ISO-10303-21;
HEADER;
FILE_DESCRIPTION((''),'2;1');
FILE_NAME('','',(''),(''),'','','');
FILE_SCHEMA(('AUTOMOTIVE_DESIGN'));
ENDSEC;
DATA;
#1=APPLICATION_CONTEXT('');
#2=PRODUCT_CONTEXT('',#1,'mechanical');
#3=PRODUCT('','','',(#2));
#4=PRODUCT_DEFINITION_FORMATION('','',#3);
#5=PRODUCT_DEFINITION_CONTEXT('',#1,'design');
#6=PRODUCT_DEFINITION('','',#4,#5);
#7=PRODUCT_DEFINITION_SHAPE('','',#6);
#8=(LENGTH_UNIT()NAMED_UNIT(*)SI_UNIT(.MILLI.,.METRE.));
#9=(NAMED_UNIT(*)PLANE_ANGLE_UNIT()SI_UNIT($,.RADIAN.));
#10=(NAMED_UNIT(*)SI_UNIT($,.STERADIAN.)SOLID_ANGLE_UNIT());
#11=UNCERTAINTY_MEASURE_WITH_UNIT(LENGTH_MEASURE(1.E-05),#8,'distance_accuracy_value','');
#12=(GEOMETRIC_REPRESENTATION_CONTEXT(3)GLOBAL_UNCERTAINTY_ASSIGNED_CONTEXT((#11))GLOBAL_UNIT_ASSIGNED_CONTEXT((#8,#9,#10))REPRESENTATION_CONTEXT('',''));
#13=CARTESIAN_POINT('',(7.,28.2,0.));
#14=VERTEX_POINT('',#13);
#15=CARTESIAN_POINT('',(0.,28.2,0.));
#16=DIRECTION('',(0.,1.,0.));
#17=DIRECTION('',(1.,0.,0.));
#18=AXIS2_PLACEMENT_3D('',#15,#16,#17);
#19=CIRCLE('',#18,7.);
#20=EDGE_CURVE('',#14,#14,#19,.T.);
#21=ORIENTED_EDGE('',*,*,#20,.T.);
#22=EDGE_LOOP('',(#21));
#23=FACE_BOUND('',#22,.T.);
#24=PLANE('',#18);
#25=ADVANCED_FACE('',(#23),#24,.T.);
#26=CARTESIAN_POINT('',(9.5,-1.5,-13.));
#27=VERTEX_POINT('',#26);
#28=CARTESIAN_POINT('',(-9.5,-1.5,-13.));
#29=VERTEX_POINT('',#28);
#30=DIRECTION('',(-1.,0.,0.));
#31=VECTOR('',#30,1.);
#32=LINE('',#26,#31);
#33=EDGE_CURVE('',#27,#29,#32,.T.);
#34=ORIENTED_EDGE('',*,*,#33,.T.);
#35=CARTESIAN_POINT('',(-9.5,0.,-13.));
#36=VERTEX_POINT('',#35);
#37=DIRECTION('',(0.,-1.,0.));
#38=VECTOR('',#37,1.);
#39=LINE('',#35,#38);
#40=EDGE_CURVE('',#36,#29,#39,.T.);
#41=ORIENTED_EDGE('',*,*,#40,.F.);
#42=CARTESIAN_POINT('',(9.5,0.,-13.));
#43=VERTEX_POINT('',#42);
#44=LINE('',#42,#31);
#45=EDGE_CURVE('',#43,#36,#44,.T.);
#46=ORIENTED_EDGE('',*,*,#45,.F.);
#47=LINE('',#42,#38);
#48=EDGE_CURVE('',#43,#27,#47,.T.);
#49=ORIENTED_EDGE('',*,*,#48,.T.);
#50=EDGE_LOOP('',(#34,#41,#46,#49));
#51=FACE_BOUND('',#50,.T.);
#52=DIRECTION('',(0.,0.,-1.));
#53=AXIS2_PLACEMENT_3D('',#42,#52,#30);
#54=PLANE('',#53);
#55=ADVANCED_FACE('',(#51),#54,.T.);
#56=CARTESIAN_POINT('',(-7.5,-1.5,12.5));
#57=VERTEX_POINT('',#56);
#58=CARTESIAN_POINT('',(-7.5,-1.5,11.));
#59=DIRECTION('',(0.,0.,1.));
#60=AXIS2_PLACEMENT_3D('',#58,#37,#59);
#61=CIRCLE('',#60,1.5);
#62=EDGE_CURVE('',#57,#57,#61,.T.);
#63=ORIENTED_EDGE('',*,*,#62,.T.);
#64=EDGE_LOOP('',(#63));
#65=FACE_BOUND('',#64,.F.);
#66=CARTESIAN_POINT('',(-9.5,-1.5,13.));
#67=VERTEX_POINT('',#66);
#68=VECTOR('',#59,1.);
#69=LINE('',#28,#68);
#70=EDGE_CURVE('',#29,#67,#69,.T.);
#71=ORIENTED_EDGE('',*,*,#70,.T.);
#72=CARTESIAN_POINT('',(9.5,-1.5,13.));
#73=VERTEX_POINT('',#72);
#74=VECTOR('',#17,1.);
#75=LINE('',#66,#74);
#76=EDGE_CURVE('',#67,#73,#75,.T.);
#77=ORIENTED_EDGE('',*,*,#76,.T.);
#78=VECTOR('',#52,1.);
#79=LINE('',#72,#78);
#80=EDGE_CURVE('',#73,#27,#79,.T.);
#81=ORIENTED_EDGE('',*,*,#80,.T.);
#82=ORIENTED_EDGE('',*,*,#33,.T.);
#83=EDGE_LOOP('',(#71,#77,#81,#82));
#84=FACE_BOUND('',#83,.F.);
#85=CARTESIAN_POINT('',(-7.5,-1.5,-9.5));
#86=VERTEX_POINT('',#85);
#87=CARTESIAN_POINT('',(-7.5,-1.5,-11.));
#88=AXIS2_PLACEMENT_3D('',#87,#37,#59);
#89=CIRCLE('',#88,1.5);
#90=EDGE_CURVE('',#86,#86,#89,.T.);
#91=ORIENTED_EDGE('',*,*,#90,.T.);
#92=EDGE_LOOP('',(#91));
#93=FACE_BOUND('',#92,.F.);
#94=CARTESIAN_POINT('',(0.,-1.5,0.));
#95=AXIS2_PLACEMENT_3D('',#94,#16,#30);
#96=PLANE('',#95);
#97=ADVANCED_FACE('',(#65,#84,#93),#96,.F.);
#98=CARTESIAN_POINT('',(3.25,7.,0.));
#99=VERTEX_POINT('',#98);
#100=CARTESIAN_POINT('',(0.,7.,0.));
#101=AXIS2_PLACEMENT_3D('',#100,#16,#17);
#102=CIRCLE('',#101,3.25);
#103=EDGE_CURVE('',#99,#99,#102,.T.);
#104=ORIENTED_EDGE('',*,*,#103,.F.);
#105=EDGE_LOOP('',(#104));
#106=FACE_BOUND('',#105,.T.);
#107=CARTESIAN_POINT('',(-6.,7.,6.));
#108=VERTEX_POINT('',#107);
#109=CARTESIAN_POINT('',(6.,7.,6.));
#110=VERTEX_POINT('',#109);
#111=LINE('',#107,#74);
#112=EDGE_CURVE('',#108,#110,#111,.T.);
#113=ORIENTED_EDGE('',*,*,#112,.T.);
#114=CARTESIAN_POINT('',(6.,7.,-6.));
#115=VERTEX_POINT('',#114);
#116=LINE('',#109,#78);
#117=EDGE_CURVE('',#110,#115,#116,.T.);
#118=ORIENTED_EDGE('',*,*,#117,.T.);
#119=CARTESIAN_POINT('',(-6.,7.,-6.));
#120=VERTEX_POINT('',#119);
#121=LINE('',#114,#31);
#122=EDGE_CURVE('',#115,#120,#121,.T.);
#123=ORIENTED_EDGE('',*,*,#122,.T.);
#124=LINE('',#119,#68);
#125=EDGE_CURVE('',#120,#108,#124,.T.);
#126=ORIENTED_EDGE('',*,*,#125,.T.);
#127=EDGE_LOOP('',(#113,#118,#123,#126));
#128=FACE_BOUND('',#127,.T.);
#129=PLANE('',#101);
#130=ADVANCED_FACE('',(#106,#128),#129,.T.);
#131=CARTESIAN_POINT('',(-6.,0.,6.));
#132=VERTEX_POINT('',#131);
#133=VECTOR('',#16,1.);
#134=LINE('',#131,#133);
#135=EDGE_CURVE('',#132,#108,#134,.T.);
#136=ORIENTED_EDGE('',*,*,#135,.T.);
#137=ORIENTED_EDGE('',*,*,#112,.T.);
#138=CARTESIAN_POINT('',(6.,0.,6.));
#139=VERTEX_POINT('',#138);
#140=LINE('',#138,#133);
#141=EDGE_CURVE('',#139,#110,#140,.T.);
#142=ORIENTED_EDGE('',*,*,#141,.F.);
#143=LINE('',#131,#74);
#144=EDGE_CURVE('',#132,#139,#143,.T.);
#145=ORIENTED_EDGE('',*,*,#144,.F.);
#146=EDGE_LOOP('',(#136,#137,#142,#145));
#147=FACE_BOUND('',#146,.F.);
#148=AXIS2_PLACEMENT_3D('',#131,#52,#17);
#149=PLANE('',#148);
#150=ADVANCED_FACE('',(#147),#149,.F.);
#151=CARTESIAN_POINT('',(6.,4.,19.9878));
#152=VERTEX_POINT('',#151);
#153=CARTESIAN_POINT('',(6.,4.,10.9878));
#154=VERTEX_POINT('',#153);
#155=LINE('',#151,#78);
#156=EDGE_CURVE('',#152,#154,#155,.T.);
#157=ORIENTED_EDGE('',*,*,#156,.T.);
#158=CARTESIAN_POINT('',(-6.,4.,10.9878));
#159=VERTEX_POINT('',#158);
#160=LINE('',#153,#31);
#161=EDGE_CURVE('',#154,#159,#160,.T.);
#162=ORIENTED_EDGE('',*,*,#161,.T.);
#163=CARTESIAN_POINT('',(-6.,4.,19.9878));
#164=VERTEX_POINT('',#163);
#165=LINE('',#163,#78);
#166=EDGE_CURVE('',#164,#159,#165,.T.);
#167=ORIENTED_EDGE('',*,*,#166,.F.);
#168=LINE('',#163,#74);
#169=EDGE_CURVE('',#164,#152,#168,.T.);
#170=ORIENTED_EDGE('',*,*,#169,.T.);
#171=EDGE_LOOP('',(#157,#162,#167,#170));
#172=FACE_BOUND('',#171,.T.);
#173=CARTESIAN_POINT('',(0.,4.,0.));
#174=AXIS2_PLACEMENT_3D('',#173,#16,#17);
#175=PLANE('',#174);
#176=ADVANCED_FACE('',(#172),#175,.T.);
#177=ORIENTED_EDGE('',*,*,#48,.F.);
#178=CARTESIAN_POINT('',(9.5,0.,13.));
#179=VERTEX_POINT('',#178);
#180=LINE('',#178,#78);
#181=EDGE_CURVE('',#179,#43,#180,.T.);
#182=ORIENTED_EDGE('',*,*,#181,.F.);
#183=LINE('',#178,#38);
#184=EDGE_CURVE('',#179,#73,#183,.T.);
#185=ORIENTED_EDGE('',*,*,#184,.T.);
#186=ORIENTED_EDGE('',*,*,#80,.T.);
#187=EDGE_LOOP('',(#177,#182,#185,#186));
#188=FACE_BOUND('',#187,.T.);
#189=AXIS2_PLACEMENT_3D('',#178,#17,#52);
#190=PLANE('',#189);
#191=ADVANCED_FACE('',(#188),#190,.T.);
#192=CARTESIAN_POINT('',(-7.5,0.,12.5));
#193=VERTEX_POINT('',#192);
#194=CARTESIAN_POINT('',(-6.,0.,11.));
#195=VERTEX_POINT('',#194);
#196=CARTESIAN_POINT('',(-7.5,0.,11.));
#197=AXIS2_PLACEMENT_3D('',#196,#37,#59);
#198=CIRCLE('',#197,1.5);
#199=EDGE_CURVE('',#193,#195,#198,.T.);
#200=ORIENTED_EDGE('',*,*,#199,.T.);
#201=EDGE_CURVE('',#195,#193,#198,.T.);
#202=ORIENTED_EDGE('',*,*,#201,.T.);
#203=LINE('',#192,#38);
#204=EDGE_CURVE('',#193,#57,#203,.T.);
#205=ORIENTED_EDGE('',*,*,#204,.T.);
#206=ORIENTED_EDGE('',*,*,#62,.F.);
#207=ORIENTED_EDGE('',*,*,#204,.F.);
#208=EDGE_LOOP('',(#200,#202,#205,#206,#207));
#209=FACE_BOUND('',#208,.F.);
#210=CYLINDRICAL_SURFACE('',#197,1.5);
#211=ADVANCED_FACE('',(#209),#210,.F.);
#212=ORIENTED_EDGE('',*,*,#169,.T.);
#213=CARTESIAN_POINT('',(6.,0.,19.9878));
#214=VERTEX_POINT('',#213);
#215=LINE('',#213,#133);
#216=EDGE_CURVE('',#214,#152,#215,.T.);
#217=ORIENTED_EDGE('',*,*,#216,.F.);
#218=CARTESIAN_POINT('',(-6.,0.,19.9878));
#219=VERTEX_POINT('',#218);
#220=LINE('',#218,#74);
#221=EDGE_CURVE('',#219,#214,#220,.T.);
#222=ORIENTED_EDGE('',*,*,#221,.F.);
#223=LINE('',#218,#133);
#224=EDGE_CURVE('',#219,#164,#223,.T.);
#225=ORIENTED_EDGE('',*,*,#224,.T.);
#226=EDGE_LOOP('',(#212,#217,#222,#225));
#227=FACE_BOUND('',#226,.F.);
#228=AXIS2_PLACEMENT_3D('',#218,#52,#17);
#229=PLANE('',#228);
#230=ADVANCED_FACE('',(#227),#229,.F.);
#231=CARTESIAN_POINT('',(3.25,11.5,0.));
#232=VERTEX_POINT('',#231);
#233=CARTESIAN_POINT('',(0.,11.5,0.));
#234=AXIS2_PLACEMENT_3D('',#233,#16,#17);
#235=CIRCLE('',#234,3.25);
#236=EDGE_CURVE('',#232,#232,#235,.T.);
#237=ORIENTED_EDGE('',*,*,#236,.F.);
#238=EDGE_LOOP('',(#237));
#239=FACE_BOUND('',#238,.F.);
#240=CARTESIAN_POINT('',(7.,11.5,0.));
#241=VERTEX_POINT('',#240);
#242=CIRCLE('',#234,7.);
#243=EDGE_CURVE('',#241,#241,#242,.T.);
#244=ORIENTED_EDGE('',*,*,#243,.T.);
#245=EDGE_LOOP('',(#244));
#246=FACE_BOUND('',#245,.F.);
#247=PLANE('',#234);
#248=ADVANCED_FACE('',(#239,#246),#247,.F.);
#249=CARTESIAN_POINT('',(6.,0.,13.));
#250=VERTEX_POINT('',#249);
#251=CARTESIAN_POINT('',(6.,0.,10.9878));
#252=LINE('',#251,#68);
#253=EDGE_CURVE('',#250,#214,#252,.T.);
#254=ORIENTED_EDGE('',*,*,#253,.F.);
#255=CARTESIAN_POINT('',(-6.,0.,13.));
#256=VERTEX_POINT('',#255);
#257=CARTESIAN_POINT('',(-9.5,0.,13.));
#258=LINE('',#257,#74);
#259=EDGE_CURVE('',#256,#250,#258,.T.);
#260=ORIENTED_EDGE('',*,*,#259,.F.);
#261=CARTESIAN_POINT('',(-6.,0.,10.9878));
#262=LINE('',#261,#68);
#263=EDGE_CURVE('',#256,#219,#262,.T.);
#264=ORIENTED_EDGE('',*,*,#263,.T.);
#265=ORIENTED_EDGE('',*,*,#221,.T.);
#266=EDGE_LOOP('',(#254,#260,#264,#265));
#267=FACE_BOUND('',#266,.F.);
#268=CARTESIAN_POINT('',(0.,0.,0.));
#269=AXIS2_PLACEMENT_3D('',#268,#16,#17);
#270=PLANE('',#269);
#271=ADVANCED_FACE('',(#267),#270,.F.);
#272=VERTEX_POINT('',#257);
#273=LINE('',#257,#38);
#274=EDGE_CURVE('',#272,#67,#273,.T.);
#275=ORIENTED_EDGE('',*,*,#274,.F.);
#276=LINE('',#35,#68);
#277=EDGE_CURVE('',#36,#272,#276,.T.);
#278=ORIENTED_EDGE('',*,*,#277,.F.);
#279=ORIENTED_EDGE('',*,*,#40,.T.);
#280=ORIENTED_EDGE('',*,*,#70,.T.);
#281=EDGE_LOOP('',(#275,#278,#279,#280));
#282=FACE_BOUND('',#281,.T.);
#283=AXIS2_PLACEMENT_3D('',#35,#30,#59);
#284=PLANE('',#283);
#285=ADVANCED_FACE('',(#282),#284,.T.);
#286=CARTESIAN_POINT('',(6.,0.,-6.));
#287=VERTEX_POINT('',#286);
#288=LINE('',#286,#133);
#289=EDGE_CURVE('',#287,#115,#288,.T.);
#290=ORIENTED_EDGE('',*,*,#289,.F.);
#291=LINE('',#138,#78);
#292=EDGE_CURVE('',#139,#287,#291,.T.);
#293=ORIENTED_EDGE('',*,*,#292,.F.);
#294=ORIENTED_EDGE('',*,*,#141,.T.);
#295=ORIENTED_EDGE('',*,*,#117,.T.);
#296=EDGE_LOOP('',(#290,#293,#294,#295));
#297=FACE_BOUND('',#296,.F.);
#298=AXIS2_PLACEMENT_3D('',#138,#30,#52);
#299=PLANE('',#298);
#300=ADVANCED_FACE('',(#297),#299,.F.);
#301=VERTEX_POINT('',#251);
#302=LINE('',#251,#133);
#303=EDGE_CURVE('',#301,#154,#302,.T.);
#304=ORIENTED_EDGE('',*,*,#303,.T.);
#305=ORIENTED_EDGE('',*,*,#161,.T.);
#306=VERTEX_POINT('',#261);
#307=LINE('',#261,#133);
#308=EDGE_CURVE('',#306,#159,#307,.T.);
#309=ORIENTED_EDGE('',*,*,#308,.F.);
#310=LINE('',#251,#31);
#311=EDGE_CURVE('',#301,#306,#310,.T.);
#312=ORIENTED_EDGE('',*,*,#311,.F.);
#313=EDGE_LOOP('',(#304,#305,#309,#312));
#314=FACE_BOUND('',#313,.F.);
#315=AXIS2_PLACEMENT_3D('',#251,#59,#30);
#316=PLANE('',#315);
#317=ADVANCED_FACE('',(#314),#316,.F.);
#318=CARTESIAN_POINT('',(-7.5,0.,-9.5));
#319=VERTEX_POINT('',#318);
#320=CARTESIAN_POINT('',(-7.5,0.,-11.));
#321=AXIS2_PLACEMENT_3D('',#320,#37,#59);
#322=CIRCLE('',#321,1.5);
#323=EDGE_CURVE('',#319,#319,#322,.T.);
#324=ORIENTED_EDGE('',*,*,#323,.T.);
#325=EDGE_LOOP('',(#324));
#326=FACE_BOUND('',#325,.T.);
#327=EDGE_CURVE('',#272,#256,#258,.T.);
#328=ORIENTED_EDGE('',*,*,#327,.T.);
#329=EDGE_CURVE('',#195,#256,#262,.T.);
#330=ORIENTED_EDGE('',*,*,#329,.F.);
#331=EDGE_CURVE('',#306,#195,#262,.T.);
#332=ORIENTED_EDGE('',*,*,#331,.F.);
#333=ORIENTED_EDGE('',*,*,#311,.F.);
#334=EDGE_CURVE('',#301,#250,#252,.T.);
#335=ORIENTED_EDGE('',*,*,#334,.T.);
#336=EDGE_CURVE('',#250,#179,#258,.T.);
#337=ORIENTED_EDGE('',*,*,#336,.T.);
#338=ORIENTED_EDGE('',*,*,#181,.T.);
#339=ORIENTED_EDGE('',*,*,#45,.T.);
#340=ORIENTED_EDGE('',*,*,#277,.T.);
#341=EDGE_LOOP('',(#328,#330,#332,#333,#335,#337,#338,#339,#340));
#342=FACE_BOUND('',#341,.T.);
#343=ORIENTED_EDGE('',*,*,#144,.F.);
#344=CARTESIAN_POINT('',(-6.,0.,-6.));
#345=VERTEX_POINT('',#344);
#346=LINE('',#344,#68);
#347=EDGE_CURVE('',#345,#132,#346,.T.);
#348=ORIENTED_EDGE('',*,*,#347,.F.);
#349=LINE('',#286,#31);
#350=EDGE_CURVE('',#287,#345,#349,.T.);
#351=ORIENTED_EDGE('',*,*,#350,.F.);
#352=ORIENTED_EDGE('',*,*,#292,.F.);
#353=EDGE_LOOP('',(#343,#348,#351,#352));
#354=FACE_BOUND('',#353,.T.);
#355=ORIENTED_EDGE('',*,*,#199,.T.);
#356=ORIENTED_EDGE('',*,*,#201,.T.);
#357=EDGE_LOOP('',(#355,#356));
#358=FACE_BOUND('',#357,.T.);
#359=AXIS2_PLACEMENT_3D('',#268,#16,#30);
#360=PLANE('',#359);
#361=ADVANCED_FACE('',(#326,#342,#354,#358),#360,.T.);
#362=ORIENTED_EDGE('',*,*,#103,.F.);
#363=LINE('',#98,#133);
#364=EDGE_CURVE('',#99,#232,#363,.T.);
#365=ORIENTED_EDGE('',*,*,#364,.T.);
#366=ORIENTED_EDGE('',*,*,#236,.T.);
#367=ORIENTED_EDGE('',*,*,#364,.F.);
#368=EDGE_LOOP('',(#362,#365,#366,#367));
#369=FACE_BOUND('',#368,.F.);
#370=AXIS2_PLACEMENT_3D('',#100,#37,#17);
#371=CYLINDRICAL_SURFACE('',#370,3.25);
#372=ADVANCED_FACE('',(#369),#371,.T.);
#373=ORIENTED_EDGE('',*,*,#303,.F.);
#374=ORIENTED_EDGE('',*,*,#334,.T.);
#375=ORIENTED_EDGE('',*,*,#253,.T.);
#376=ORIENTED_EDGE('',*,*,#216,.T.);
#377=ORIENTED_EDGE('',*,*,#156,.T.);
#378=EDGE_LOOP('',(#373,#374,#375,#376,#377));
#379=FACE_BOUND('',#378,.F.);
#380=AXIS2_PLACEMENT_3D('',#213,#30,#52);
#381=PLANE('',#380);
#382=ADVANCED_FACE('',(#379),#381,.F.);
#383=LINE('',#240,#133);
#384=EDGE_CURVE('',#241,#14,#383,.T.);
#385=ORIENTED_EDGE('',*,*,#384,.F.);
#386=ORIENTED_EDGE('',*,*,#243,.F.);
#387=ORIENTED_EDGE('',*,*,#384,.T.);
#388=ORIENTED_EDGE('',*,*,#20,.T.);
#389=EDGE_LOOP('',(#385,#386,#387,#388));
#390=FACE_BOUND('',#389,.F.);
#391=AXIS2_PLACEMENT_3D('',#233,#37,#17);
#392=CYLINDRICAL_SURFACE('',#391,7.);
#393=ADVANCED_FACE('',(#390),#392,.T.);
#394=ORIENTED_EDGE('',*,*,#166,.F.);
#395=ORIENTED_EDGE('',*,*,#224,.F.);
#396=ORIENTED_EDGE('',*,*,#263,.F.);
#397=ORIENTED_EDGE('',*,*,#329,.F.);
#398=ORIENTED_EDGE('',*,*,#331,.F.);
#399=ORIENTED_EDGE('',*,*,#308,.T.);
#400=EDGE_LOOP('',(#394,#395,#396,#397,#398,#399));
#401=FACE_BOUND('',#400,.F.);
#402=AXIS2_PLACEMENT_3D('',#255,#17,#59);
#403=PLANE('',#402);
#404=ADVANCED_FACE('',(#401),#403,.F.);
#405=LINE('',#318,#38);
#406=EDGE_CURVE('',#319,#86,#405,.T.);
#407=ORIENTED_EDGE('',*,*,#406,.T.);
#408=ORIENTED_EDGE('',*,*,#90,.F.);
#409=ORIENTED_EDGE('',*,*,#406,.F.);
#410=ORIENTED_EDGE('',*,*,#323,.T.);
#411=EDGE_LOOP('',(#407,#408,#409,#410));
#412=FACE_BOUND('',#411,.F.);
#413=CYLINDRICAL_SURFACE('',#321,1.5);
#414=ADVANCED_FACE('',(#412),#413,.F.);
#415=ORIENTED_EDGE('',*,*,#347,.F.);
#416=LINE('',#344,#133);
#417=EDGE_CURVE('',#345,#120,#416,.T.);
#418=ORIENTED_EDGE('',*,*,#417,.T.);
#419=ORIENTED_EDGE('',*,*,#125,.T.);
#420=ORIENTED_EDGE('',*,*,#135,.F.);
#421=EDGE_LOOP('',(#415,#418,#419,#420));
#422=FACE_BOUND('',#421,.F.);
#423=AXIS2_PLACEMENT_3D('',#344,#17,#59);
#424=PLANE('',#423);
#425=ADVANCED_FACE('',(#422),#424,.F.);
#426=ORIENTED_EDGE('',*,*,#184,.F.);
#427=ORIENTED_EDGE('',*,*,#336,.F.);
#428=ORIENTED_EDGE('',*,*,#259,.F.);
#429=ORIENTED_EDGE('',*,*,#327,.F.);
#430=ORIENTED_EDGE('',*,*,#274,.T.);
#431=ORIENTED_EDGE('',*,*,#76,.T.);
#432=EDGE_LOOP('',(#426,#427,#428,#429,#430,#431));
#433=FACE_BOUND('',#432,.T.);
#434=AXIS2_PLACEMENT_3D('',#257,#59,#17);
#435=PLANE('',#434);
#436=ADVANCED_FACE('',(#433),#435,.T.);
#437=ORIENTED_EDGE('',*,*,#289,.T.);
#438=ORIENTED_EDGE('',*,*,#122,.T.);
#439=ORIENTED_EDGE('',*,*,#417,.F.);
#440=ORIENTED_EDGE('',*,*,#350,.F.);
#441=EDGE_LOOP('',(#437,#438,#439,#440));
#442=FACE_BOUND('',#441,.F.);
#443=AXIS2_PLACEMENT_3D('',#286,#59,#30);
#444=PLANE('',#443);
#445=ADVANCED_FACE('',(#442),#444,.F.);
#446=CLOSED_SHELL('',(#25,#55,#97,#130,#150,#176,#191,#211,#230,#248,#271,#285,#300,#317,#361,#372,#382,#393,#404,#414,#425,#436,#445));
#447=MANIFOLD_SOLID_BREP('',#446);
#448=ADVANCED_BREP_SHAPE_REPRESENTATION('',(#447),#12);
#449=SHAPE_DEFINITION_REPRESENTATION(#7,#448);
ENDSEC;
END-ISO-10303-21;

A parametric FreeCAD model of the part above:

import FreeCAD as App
import Part
import Sketcher
from FreeCAD import Vector
Q = App.Units.Quantity


def add_polygon(sketch, points):
    """Adds a closed chain of lines whose ends are joined by coincident constraints."""
    first, n = sketch.GeometryCount, len(points)
    for a, b in zip(points, points[1:] + points[:1]):
        sketch.addGeometry(Part.LineSegment(App.Vector(*a, 0), App.Vector(*b, 0)), False)
    for i in range(n):
        sketch.addConstraint(Sketcher.Constraint("Coincident", first + i, 2, first + (i + 1) % n, 1))

doc = App.newDocument("Part")
body = doc.addObject("PartDesign::Body", "Body")

sketch1 = body.newObject("Sketcher::SketchObject", "Sketch")
sketch1.AttachmentSupport = (doc.getObject("XZ_Plane"), [""])
sketch1.MapMode = "FlatFace"
add_polygon(sketch1, [(-9.5, -13), (-9.5, 13), (9.5, 13), (9.5, -13)])
sketch1.addConstraint([
    Sketcher.Constraint("Vertical", 0),
    Sketcher.Constraint("Horizontal", 1),
    Sketcher.Constraint("Vertical", 2),
    Sketcher.Constraint("Horizontal", 3),
    Sketcher.Constraint("Symmetric", 0, 2, 2, 2, -1, 1),
    Sketcher.Constraint("DistanceX", 1, 1, 1, 2, Q("19 mm")),
    Sketcher.Constraint("DistanceY", 0, 1, 0, 2, Q("26 mm")),
])
pad1 = body.newObject("PartDesign::Pad", "Pad")
pad1.Profile = sketch1
pad1.Length = 1.5

sketch2 = body.newObject("Sketcher::SketchObject", "Sketch001")
sketch2.AttachmentSupport = (doc.getObject("XZ_Plane"), [""])
sketch2.MapMode = "FlatFace"
add_polygon(sketch2, [(-6, 19.9878), (6, 19.9878), (6, 10.9878), (-6, 10.9878)])
sketch2.addConstraint([
    Sketcher.Constraint("Horizontal", 0),
    Sketcher.Constraint("Vertical", 1),
    Sketcher.Constraint("Horizontal", 2),
    Sketcher.Constraint("Vertical", 3),
    Sketcher.Constraint("DistanceX", 0, 1, 0, 2, Q("12 mm")),
    Sketcher.Constraint("DistanceY", 1, 2, 1, 1, Q("9 mm")),
    Sketcher.Constraint("DistanceX", -1, 1, 0, 2, Q("6 mm")),
    Sketcher.Constraint("DistanceY", -1, 1, 0, 2, Q("19.9878 mm")),
])
pad2 = body.newObject("PartDesign::Pad", "Pad001")
pad2.Profile = sketch2
pad2.Length = 4
pad2.Reversed = True

sketch3 = body.newObject("Sketcher::SketchObject", "Sketch002")
sketch3.AttachmentSupport = (doc.getObject("XZ_Plane"), [""])
sketch3.MapMode = "FlatFace"
sketch3.addGeometry([
    Part.Circle(Vector(-7.5, 11, 0), Vector(0, 0, 1), 1.5),
    Part.Circle(Vector(-7.5, -11, 0), Vector(0, 0, 1), 1.5),
], False)
sketch3.addConstraint([
    Sketcher.Constraint("Equal", 0, 1),
    Sketcher.Constraint("Symmetric", 0, 3, 1, 3, -1),
    Sketcher.Constraint("Diameter", 0, Q("3 mm")),
    Sketcher.Constraint("DistanceY", -1, 1, 0, 3, Q("11 mm")),
    Sketcher.Constraint("DistanceX", 0, 3, -1, 1, Q("7.5 mm")),
])
doc.recompute()
hole = body.newObject("PartDesign::Hole", "Hole")
hole.Profile = sketch3
hole.ThreadType = "None"
hole.Diameter = 3
hole.DepthType = "ThroughAll"
hole.Reversed = True

sketch4 = body.newObject("Sketcher::SketchObject", "Sketch003")
sketch4.AttachmentSupport = (doc.getObject("XZ_Plane"), [""])
sketch4.MapMode = "FlatFace"
add_polygon(sketch4, [(-6, -6), (-6, 6), (6, 6), (6, -6)])
sketch4.addConstraint([
    Sketcher.Constraint("Vertical", 0),
    Sketcher.Constraint("Horizontal", 1),
    Sketcher.Constraint("Vertical", 2),
    Sketcher.Constraint("Horizontal", 3),
    Sketcher.Constraint("Symmetric", 0, 2, 2, 2, -1, 1),
    Sketcher.Constraint("Equal", 3, 0),
    Sketcher.Constraint("DistanceX", 1, 1, 1, 2, Q("12 mm")),
])
pad3 = body.newObject("PartDesign::Pad", "Pad002")
pad3.Profile = sketch4
pad3.Length = 7
pad3.Reversed = True

sketch5 = body.newObject("Sketcher::SketchObject", "Sketch004")
sketch5.AttachmentSupport = (doc.getObject("XZ_Plane"), [""])
sketch5.MapMode = "FlatFace"
sketch5.AttachmentOffset = App.Placement(Vector(0, 0, -7), App.Rotation())
sketch5.addGeometry(Part.Circle(Vector(0, 0, 0), Vector(0, 0, 1), 3.25), False)
sketch5.addConstraint([
    Sketcher.Constraint("Coincident", 0, 3, -1, 1),
    Sketcher.Constraint("Diameter", 0, Q("6.5 mm")),
])
pad4 = body.newObject("PartDesign::Pad", "Pad003")
pad4.Profile = sketch5
pad4.Length = 4.5
pad4.Reversed = True

sketch6 = body.newObject("Sketcher::SketchObject", "Sketch005")
sketch6.AttachmentSupport = (doc.getObject("XZ_Plane"), [""])
sketch6.MapMode = "FlatFace"
sketch6.AttachmentOffset = App.Placement(Vector(0, 0, -11.5), App.Rotation())
sketch6.addGeometry(Part.Circle(Vector(0, 0, 0), Vector(0, 0, 1), 7), False)
sketch6.addConstraint([
    Sketcher.Constraint("Coincident", 0, 3, -1, 1),
    Sketcher.Constraint("Diameter", 0, Q("14 mm")),
])
pad5 = body.newObject("PartDesign::Pad", "Pad004")
pad5.Profile = sketch6
pad5.Length = 16.7
pad5.Reversed = True

doc.recompute()
